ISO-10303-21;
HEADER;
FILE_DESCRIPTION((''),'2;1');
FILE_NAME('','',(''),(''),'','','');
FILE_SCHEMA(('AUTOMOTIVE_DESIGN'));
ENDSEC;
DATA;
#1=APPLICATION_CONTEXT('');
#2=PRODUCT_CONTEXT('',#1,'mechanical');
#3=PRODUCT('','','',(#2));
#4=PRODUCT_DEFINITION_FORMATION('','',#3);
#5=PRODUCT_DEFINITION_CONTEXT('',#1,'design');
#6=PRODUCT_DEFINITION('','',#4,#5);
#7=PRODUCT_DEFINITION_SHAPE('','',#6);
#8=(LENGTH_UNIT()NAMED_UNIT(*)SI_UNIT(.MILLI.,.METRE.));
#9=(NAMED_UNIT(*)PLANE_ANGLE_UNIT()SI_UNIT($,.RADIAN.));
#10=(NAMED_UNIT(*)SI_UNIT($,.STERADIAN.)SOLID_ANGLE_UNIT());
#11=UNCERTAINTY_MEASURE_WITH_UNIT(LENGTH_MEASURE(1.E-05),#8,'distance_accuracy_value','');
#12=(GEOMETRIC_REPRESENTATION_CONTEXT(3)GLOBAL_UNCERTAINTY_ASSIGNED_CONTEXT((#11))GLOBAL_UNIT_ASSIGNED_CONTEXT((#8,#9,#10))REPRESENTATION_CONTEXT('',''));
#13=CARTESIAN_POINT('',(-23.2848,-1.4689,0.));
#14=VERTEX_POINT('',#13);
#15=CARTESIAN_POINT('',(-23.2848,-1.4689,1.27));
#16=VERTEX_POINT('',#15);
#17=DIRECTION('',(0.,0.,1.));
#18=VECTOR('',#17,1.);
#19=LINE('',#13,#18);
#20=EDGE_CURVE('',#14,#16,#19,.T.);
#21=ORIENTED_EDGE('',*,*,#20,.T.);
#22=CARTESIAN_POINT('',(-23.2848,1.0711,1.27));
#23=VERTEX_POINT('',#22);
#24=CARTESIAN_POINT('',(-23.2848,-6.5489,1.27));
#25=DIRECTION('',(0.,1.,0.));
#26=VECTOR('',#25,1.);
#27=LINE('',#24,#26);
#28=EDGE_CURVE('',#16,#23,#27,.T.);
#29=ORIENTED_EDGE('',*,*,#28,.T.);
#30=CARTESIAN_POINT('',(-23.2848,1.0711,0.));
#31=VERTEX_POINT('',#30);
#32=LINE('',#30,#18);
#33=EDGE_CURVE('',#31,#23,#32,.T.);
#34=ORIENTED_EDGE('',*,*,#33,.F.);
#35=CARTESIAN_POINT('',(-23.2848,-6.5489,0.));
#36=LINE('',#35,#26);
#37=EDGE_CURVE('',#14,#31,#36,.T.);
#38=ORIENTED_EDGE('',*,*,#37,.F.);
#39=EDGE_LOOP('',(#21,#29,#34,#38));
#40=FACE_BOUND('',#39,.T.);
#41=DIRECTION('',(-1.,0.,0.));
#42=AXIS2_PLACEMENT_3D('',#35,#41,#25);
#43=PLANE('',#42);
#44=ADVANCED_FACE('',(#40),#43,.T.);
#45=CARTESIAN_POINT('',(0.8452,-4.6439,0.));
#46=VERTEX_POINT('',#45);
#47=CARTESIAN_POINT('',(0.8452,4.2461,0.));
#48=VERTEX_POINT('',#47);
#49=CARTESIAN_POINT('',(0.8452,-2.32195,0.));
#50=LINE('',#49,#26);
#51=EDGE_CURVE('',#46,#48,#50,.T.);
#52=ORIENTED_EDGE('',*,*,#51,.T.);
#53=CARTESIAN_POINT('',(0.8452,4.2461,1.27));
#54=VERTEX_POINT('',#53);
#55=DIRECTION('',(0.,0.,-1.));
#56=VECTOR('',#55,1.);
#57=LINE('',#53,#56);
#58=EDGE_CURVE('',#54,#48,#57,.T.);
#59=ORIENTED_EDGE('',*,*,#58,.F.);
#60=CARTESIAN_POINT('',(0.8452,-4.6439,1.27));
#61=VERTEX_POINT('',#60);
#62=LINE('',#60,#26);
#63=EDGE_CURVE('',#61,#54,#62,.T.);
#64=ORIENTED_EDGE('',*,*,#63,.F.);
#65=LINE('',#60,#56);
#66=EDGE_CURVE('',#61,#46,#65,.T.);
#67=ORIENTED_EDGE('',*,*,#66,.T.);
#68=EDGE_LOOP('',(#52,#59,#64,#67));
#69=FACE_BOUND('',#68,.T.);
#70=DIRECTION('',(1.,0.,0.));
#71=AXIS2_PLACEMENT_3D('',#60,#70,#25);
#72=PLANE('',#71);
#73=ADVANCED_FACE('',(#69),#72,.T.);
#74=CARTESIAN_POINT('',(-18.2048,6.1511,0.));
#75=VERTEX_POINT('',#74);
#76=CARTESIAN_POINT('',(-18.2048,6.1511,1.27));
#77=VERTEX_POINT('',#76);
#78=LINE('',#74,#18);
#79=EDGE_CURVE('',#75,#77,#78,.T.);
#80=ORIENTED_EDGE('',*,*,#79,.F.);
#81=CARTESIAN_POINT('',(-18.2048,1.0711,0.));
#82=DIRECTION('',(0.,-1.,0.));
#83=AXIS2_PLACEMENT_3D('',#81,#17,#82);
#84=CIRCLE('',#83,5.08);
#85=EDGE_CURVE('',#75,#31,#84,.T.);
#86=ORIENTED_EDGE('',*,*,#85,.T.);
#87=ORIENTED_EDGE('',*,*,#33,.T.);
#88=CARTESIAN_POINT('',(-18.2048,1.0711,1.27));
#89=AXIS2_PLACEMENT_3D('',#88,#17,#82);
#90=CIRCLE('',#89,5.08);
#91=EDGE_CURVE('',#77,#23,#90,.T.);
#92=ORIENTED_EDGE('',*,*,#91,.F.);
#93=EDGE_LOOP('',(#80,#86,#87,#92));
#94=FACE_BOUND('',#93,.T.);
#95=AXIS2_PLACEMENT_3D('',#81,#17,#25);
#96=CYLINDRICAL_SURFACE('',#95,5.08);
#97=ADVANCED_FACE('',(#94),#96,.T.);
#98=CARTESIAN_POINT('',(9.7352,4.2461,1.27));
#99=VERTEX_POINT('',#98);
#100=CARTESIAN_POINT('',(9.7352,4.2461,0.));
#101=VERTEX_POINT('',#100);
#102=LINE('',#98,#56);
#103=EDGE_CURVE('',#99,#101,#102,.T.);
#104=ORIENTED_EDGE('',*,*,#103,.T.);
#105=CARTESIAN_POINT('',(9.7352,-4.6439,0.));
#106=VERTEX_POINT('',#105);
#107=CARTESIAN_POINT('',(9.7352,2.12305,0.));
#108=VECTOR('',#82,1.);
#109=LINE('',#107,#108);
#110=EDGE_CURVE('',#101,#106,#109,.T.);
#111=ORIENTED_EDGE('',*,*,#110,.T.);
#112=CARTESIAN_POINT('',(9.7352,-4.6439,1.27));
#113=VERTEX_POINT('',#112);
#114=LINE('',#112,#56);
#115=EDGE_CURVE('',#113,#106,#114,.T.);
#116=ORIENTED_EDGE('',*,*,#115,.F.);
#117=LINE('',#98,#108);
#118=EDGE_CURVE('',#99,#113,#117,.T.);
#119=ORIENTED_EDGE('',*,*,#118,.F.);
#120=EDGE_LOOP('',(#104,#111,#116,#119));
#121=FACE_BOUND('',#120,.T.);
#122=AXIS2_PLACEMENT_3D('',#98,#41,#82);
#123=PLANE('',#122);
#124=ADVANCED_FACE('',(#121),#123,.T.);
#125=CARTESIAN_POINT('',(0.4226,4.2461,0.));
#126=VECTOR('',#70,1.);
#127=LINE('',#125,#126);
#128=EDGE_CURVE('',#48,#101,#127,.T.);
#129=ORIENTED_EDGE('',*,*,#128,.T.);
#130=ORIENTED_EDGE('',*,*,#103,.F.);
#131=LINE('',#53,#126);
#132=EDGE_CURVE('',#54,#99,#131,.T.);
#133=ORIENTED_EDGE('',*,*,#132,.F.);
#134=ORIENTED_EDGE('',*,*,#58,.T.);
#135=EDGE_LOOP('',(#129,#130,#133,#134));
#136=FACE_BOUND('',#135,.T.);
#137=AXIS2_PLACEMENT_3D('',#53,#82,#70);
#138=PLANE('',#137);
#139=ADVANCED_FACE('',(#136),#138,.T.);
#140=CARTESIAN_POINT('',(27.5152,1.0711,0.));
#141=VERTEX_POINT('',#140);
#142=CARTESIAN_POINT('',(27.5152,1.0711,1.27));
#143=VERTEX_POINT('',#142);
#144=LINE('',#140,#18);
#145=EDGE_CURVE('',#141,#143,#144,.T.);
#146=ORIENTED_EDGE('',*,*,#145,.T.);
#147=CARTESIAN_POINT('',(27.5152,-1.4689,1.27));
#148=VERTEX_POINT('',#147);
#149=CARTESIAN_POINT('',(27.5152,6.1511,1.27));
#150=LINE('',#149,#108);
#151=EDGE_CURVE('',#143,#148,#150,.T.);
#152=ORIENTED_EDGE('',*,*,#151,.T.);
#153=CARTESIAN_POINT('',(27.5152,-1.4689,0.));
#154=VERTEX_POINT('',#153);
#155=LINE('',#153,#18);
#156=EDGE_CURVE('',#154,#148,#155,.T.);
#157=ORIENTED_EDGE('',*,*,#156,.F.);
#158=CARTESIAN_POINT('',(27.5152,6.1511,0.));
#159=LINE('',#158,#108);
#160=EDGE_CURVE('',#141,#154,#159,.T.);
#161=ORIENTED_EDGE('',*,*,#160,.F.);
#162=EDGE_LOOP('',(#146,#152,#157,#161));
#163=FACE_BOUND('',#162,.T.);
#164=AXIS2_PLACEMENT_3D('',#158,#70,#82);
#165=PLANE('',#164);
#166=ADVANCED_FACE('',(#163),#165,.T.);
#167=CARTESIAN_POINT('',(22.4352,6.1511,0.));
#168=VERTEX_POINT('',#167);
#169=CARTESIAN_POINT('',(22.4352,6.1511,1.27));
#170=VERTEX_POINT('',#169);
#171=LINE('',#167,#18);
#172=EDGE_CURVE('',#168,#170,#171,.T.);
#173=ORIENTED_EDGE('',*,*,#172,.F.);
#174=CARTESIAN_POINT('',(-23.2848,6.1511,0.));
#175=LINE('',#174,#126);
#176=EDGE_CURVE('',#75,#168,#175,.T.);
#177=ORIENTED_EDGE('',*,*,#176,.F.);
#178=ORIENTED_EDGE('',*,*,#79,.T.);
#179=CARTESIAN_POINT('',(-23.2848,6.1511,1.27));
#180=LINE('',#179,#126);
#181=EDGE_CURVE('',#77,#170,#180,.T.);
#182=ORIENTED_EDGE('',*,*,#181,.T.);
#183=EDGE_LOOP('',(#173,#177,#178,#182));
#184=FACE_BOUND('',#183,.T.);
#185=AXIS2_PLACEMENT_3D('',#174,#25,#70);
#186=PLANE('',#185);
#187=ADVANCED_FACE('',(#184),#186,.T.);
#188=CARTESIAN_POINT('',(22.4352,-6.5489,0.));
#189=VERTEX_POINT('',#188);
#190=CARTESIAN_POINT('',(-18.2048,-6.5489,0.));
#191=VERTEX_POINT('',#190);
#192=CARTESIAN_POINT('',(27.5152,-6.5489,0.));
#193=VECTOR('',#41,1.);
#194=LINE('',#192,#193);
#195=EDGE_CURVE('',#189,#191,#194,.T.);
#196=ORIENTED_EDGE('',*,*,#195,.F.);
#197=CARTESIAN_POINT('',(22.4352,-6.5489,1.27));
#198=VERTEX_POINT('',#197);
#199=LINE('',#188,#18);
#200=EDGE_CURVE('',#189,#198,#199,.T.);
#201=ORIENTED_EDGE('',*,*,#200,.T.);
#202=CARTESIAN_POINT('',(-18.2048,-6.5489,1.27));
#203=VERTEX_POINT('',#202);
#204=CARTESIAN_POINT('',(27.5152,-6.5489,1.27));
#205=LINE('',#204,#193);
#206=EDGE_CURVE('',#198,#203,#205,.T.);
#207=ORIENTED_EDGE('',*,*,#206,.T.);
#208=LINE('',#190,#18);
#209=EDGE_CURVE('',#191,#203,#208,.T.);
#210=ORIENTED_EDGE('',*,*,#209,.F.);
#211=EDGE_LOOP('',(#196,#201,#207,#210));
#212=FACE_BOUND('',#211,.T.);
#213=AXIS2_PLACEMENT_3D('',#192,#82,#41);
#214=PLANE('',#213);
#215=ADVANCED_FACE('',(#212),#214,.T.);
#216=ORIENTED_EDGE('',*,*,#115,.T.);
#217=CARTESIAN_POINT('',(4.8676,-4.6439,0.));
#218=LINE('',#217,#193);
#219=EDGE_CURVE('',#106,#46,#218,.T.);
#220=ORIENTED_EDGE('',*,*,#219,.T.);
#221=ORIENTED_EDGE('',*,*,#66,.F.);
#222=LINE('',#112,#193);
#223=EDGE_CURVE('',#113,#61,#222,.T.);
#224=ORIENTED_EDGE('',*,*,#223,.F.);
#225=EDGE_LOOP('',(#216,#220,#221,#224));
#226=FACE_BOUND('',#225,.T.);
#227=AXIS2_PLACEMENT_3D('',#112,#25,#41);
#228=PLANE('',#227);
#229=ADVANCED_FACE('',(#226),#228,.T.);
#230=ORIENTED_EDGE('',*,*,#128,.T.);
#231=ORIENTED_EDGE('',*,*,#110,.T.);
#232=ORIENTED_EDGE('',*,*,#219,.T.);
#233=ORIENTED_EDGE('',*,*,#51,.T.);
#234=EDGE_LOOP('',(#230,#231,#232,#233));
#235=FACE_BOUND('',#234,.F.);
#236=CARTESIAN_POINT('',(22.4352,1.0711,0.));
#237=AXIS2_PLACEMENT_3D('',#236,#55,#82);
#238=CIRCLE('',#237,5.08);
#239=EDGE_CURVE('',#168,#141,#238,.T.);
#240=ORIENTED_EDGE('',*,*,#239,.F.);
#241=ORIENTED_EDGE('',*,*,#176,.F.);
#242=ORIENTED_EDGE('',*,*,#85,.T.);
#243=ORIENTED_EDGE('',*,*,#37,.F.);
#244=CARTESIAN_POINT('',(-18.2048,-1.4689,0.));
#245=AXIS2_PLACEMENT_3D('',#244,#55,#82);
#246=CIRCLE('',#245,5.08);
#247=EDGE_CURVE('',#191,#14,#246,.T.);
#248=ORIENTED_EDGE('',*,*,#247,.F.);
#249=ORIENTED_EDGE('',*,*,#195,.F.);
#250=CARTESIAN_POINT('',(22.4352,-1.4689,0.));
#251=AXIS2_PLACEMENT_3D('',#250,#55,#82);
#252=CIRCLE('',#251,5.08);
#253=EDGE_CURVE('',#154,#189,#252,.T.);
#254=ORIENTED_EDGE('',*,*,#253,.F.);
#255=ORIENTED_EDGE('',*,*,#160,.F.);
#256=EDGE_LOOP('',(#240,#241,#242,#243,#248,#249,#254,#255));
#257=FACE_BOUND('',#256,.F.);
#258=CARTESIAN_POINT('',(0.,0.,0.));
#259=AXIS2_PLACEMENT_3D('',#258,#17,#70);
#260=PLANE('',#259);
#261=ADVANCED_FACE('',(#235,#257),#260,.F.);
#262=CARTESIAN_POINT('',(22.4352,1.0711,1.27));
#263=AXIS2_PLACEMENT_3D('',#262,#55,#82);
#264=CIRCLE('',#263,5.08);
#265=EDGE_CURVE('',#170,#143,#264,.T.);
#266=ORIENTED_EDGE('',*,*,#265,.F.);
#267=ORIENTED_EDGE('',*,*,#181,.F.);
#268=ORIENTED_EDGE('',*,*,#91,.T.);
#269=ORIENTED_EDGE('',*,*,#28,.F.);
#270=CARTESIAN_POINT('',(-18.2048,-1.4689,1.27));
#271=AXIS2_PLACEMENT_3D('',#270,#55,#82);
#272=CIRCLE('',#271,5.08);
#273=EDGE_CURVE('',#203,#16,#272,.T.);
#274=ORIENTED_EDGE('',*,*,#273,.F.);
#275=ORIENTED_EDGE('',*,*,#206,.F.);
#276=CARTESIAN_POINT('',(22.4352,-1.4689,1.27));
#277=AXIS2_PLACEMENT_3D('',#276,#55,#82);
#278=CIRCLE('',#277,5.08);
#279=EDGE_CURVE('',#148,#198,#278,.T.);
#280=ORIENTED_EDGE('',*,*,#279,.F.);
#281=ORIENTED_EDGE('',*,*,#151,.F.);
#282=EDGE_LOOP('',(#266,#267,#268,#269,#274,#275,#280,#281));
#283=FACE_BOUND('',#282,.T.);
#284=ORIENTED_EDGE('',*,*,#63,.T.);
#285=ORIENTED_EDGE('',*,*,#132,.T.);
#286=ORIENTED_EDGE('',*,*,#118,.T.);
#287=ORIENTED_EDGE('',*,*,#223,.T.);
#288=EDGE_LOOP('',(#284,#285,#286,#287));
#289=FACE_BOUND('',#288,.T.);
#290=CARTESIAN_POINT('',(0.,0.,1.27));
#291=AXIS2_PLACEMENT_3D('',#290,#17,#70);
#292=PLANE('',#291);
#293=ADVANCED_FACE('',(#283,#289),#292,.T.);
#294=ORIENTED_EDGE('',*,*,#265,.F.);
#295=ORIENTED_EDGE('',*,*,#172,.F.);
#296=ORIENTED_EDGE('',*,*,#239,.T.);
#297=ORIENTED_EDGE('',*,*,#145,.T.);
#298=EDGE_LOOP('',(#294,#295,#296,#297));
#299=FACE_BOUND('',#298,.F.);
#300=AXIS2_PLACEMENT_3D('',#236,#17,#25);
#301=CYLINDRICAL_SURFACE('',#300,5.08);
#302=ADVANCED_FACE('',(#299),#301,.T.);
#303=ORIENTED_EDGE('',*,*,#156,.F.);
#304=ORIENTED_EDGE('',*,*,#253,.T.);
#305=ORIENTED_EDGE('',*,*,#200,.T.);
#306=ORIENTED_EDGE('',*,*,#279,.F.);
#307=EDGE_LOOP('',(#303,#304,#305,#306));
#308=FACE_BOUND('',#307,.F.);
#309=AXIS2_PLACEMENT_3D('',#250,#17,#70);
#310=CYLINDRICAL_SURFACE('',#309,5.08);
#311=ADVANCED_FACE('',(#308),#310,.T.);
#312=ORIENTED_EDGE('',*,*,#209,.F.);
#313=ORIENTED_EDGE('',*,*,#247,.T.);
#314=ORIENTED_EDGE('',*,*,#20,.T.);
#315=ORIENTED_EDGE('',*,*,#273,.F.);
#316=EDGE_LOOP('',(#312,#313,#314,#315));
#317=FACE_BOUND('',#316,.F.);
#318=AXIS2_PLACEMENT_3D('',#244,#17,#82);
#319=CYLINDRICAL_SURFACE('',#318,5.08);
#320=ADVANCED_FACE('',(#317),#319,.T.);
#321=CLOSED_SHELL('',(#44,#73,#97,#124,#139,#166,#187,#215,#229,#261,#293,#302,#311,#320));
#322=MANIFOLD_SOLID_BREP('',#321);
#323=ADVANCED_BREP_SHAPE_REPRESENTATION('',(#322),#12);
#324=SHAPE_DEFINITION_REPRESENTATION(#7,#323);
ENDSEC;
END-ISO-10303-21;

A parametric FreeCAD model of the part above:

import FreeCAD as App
import Part
import Sketcher
from FreeCAD import Vector
Q = App.Units.Quantity


def edges_at(feature, points):
    """Names of the edges that pass closest to the given points."""
    edges = feature.Shape.Edges
    near = lambda p: min(range(len(edges)), key=lambda i: edges[i].distToShape(Part.Vertex(*p))[0])
    return sorted({f"Edge{near(p) + 1}" for p in points})


def add_polygon(sketch, points):
    """Adds a closed chain of lines whose ends are joined by coincident constraints."""
    first, n = sketch.GeometryCount, len(points)
    for a, b in zip(points, points[1:] + points[:1]):
        sketch.addGeometry(Part.LineSegment(App.Vector(*a, 0), App.Vector(*b, 0)), False)
    for i in range(n):
        sketch.addConstraint(Sketcher.Constraint("Coincident", first + i, 2, first + (i + 1) % n, 1))

doc = App.newDocument("Part")
body = doc.addObject("PartDesign::Body", "Body")

# Sketch on XY plane
sketch1 = doc.addObject("Sketcher::SketchObject", "Sketch")
body.addObject(sketch1)
sketch1.AttachmentSupport = (doc.XY_Plane, [""])
sketch1.MapMode = "FlatFace"
add_polygon(sketch1, [(27.5152, 6.1511), (-23.2848, 6.1511), (-23.2848, -6.5489), (27.5152, -6.5489)])  # lines 0-3
sketch1.addConstraint(Sketcher.Constraint("Horizontal", 0))
sketch1.addConstraint(Sketcher.Constraint("Vertical", 1))
sketch1.addConstraint(Sketcher.Constraint("Horizontal", 2))
sketch1.addConstraint(Sketcher.Constraint("Vertical", 3))
sketch1.addConstraint(Sketcher.Constraint("DistanceX", 0, 2, 0, 1, Q("2 in")))
sketch1.addConstraint(Sketcher.Constraint("DistanceY", 1, 2, 1, 1, Q("0.5 in")))
sketch1.addConstraint(Sketcher.Constraint("DistanceX", 0, 2, -1, 1, 23.2848))
sketch1.addConstraint(Sketcher.Constraint("DistanceY", -1, 1, 0, 2, 6.151))
pad1 = doc.addObject("PartDesign::Pad", "Pad")
body.addObject(pad1)
pad1.Profile = sketch1
pad1.Length = Q("0.05 in")
doc.recompute()

fillet = doc.addObject("PartDesign::Fillet", "Fillet")
body.addObject(fillet)
fillet.Base = (pad1, edges_at(pad1, [
    (-23.285, 6.151, 0.635),
    (27.515, 6.151, 0.635),
    (27.515, -6.549, 0.635),
    (-23.285, -6.549, 0.635),
]))
fillet.Radius = Q("0.2 in")

# Sketch on XY plane
sketch2 = doc.addObject("Sketcher::SketchObject", "Sketch001")
body.addObject(sketch2)
sketch2.AttachmentSupport = (doc.XY_Plane, [""])
sketch2.MapMode = "FlatFace"
sketch2.AttachmentOffset = App.Placement(Vector(0, 0, 0.05 * 25.4), App.Rotation())
add_polygon(sketch2, [(9.7352, 4.2461), (0.8452, 4.2461), (0.8452, -4.6439), (9.7352, -4.6439)])  # lines 0-3
sketch2.addConstraint(Sketcher.Constraint("Horizontal", 0))
sketch2.addConstraint(Sketcher.Constraint("Vertical", 1))
sketch2.addConstraint(Sketcher.Constraint("Horizontal", 2))
sketch2.addConstraint(Sketcher.Constraint("Vertical", 3))
sketch2.addConstraint(Sketcher.Constraint("Equal", 2, 1))
sketch2.addConstraint(Sketcher.Constraint("DistanceX", 0, 2, 0, 1, Q("0.35 in")))
sketch2.addConstraint(Sketcher.Constraint("DistanceX", -1, 1, 0, 2, 0.8452))
sketch2.addConstraint(Sketcher.Constraint("DistanceY", -1, 1, 0, 2, 4.246))
pocket1 = doc.addObject("PartDesign::Pocket", "Pocket")
body.addObject(pocket1)
pocket1.Profile = sketch2
pocket1.Type = "ThroughAll"

doc.recompute()
